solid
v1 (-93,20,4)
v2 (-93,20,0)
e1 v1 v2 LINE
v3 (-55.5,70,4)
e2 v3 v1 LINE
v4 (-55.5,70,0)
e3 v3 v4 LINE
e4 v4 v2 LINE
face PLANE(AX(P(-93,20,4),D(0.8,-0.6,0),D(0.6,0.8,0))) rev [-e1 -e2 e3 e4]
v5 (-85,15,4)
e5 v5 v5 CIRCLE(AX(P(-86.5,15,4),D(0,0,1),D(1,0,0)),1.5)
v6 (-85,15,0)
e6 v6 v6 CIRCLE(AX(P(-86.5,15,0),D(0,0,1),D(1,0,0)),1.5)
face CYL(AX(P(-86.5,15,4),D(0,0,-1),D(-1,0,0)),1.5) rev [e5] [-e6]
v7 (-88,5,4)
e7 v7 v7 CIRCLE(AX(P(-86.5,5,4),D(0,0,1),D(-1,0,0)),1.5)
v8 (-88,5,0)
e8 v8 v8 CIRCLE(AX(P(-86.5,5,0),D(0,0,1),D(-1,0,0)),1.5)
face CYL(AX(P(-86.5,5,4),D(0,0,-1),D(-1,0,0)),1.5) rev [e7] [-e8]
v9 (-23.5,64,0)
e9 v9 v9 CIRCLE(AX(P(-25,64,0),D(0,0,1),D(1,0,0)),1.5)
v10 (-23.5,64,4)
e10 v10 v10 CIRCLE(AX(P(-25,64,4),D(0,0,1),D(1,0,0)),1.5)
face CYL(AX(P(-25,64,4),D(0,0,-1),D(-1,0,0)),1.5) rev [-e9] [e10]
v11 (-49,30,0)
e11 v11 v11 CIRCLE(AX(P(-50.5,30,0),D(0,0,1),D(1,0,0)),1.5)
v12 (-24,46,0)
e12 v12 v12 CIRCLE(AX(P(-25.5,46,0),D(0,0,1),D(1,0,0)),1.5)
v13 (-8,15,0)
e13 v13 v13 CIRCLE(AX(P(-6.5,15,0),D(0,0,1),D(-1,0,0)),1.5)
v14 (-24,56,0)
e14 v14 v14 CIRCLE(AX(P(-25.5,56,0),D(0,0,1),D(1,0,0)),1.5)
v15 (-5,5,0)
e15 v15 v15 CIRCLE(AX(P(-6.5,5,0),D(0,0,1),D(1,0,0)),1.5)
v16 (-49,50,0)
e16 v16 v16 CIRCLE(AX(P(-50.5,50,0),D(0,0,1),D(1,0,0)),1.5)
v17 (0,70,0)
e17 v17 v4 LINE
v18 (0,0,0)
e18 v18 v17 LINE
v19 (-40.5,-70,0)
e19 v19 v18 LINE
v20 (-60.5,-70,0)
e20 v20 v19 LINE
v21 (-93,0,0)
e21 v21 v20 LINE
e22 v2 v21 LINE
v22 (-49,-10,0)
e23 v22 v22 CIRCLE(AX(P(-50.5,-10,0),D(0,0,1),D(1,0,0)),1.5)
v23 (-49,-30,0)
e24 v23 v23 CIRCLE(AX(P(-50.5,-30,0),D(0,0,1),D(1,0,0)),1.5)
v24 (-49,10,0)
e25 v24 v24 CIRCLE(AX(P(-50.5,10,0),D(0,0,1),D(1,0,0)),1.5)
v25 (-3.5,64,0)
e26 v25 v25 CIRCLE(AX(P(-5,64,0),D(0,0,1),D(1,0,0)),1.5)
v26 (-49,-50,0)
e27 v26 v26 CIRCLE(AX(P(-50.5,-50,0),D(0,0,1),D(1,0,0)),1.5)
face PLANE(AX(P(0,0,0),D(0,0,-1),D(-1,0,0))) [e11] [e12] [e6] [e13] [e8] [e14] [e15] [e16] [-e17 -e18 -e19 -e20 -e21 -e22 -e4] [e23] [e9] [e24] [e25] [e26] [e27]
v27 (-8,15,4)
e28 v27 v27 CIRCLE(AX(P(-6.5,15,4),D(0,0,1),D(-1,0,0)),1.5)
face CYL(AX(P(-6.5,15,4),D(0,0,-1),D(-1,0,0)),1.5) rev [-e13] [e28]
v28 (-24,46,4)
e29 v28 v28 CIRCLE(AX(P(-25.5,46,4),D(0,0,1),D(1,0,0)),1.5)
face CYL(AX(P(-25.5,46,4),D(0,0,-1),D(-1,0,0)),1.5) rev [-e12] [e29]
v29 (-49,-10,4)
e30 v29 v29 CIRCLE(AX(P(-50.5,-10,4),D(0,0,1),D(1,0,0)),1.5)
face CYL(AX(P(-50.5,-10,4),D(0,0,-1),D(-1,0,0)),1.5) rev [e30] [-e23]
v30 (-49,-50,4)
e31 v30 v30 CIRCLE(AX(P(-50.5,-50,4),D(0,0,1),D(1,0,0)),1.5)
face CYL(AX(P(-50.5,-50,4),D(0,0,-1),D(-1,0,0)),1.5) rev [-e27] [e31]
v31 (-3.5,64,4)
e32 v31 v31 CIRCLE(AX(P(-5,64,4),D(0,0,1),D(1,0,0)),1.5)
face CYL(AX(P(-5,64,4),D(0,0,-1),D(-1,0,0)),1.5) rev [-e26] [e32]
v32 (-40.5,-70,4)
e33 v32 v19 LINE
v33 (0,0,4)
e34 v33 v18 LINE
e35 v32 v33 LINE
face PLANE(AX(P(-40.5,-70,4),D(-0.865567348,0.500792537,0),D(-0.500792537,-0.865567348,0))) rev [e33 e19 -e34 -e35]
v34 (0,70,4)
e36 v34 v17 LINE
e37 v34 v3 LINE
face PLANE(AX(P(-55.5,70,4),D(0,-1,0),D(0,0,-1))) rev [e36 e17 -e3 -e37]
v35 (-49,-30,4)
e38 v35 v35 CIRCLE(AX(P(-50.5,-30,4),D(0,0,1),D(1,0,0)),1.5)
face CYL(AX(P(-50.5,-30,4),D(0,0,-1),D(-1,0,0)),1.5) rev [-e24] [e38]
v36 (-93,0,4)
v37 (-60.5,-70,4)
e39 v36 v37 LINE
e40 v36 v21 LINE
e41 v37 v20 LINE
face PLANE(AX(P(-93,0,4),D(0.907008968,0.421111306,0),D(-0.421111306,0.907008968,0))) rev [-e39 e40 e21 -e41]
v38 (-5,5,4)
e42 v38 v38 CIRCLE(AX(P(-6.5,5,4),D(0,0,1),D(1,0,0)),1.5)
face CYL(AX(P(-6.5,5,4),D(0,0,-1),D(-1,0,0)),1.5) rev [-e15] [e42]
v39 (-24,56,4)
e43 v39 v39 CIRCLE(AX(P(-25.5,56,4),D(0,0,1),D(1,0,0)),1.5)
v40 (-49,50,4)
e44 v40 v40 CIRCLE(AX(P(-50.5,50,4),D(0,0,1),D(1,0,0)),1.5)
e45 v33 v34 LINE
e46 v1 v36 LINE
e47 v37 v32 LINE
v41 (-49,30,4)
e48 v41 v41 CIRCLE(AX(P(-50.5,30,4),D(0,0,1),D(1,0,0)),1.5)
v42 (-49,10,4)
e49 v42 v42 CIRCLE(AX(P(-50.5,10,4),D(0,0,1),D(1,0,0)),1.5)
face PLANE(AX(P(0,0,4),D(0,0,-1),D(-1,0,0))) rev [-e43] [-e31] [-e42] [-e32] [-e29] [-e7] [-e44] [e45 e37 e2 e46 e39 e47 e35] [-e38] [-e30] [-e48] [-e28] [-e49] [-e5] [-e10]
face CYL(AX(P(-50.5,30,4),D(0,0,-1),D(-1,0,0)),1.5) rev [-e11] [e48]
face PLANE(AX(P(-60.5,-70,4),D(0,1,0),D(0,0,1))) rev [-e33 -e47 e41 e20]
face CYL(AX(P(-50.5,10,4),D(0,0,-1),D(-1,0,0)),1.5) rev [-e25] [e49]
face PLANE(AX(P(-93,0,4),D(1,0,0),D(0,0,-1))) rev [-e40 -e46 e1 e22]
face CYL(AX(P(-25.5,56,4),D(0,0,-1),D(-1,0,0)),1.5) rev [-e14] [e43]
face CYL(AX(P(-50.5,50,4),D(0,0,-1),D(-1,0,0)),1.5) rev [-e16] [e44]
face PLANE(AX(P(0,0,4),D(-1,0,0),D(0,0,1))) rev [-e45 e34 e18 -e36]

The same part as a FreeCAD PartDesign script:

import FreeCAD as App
import Part
import Sketcher

V = App.Vector
Q = App.Units.Quantity

doc = App.newDocument("Part")
body = doc.addObject("PartDesign::Body", "Body")

sketch1 = doc.addObject("Sketcher::SketchObject", "Sketch")
body.addObject(sketch1)
sketch1.AttachmentSupport = (doc.XY_Plane, [""])
sketch1.MapMode = "FlatFace"
sketch1.addGeometry([
    Part.LineSegment(V(0, 0, 0), V(0, 70, 0)),
    Part.LineSegment(V(0, 70, 0), V(-55.5, 70, 0)),
    Part.LineSegment(V(-55.5, 70, 0), V(-93, 20, 0)),
    Part.LineSegment(V(-93, 20, 0), V(-93, 0, 0)),
    Part.LineSegment(V(-93, 0, 0), V(-60.5, -70, 0)),
    Part.LineSegment(V(-60.5, -70, 0), V(-40.5, -70, 0)),
    Part.LineSegment(V(-40.5, -70, 0), V(0, 0, 0)),
    Part.Circle(V(-50.5, -50, 0), V(0, 0, 1), 1.5),
    Part.Circle(V(-50.5, -30, 0), V(0, 0, 1), 1.5),
    Part.Circle(V(-86.5, 5, 0), V(0, 0, 1), 1.5),
    Part.Circle(V(-50.5, -10, 0), V(0, 0, 1), 1.5),
    Part.Circle(V(-6.5, 5, 0), V(0, 0, 1), 1.5),
    Part.Circle(V(-86.5, 15, 0), V(0, 0, 1), 1.5),
    Part.Circle(V(-50.5, 10, 0), V(0, 0, 1), 1.5),
    Part.Circle(V(-50.5, 30, 0), V(0, 0, 1), 1.5),
    Part.Circle(V(-50.5, 50, 0), V(0, 0, 1), 1.5),
    Part.Circle(V(-6.5, 15, 0), V(0, 0, 1), 1.5),
    Part.Circle(V(-25.5, 46, 0), V(0, 0, 1), 1.5),
    Part.Circle(V(-25.5, 56, 0), V(0, 0, 1), 1.5),
    Part.Circle(V(-25, 64, 0), V(0, 0, 1), 1.5),
    Part.Circle(V(-5, 64, 0), V(0, 0, 1), 1.5),
], False)
sketch1.addConstraint([
    Sketcher.Constraint("Coincident", 0, 2, 1, 1),
    Sketcher.Constraint("Coincident", 1, 2, 2, 1),
    Sketcher.Constraint("Coincident", 2, 2, 3, 1),
    Sketcher.Constraint("Coincident", 3, 2, 4, 1),
    Sketcher.Constraint("Coincident", 4, 2, 5, 1),
    Sketcher.Constraint("Coincident", 5, 2, 6, 1),
    Sketcher.Constraint("Coincident", 6, 2, 0, 1),
    Sketcher.Constraint("Vertical", 0),
    Sketcher.Constraint("Horizontal", 1),
    Sketcher.Constraint("Vertical", 3),
    Sketcher.Constraint("Horizontal", 5),
    Sketcher.Constraint("Coincident", 6, 2, -1, 1),
    Sketcher.Constraint("Equal", 7, 8),
    Sketcher.Constraint("Equal", 8, 9),
    Sketcher.Constraint("Equal", 9, 10),
    Sketcher.Constraint("Equal", 10, 11),
    Sketcher.Constraint("Equal", 11, 12),
    Sketcher.Constraint("Equal", 12, 13),
    Sketcher.Constraint("Equal", 13, 14),
    Sketcher.Constraint("Equal", 14, 15),
    Sketcher.Constraint("Equal", 15, 16),
    Sketcher.Constraint("Equal", 16, 17),
    Sketcher.Constraint("Equal", 17, 18),
    Sketcher.Constraint("Equal", 18, 19),
    Sketcher.Constraint("Equal", 19, 20),
    Sketcher.Constraint("Symmetric", 10, 3, 13, 3, -1),
    Sketcher.Constraint("Symmetric", 8, 3, 14, 3, -1),
    Sketcher.Constraint("Symmetric", 7, 3, 15, 3, -1),
    Sketcher.Constraint("PointOnObject", 3, 2, -1),
    Sketcher.Constraint("Horizontal", 9, 3, 11, 3),
    Sketcher.Constraint("Horizontal", 12, 3, 16, 3),
    Sketcher.Constraint("Horizontal", 19, 3, 20, 3),
    Sketcher.Constraint("Vertical", 7, 3, 8, 3),
    Sketcher.Constraint("Vertical", 8, 3, 10, 3),
    Sketcher.Constraint("Vertical", 9, 3, 12, 3),
    Sketcher.Constraint("Vertical", 11, 3, 16, 3),
    Sketcher.Constraint("Vertical", 17, 3, 18, 3),
    Sketcher.Constraint("Equal", 5, 3),
    Sketcher.Constraint("Diameter", 7, Q("3 mm")),
    Sketcher.Constraint("DistanceX", 5, 1, 5, 2, Q("20 mm")),
    Sketcher.Constraint("DistanceY", 0, 1, 0, 2, Q("70 mm")),
    Sketcher.Constraint("DistanceX", 1, 2, 1, 1, Q("55.5 mm")),
    Sketcher.Constraint("DistanceY", 7, 3, -1, 1, Q("50 mm")),
    Sketcher.Constraint("DistanceY", 8, 3, -1, 1, Q("30 mm")),
    Sketcher.Constraint("DistanceY", -1, 1, 9, 3, Q("5 mm")),
    Sketcher.Constraint("DistanceY", 10, 3, -1, 1, Q("10 mm")),
    Sketcher.Constraint("DistanceY", -1, 1, 12, 3, Q("15 mm")),
    Sketcher.Constraint("DistanceY", -1, 1, 17, 3, Q("46 mm")),
    Sketcher.Constraint("DistanceY", -1, 1, 18, 3, Q("56 mm")),
    Sketcher.Constraint("DistanceX", 19, 3, -1, 1, Q("25 mm")),
    Sketcher.Constraint("DistanceY", -1, 1, 19, 3, Q("64 mm")),
    Sketcher.Constraint("DistanceX", 20, 3, -1, 1, Q("5 mm")),
    Sketcher.Constraint("DistanceX", 2, 2, -1, 1, Q("93 mm")),
    Sketcher.Constraint("DistanceY", 4, 2, -1, 1, Q("70 mm")),
    Sketcher.Constraint("DistanceX", 9, 3, 8, 3, Q("36 mm")),
    Sketcher.Constraint("DistanceX", 10, 3, 11, 3, Q("44 mm")),
    Sketcher.Constraint("DistanceX", 15, 3, 17, 3, Q("25 mm")),
    Sketcher.Constraint("DistanceX", 1, 2, 15, 3, Q("5 mm")),
    Sketcher.Constraint("DistanceX", 4, 2, 7, 3, Q("10 mm")),
])
pad1 = doc.addObject("PartDesign::Pad", "Pad")
body.addObject(pad1)
pad1.Profile = sketch1
pad1.Length = 4

doc.recompute()
